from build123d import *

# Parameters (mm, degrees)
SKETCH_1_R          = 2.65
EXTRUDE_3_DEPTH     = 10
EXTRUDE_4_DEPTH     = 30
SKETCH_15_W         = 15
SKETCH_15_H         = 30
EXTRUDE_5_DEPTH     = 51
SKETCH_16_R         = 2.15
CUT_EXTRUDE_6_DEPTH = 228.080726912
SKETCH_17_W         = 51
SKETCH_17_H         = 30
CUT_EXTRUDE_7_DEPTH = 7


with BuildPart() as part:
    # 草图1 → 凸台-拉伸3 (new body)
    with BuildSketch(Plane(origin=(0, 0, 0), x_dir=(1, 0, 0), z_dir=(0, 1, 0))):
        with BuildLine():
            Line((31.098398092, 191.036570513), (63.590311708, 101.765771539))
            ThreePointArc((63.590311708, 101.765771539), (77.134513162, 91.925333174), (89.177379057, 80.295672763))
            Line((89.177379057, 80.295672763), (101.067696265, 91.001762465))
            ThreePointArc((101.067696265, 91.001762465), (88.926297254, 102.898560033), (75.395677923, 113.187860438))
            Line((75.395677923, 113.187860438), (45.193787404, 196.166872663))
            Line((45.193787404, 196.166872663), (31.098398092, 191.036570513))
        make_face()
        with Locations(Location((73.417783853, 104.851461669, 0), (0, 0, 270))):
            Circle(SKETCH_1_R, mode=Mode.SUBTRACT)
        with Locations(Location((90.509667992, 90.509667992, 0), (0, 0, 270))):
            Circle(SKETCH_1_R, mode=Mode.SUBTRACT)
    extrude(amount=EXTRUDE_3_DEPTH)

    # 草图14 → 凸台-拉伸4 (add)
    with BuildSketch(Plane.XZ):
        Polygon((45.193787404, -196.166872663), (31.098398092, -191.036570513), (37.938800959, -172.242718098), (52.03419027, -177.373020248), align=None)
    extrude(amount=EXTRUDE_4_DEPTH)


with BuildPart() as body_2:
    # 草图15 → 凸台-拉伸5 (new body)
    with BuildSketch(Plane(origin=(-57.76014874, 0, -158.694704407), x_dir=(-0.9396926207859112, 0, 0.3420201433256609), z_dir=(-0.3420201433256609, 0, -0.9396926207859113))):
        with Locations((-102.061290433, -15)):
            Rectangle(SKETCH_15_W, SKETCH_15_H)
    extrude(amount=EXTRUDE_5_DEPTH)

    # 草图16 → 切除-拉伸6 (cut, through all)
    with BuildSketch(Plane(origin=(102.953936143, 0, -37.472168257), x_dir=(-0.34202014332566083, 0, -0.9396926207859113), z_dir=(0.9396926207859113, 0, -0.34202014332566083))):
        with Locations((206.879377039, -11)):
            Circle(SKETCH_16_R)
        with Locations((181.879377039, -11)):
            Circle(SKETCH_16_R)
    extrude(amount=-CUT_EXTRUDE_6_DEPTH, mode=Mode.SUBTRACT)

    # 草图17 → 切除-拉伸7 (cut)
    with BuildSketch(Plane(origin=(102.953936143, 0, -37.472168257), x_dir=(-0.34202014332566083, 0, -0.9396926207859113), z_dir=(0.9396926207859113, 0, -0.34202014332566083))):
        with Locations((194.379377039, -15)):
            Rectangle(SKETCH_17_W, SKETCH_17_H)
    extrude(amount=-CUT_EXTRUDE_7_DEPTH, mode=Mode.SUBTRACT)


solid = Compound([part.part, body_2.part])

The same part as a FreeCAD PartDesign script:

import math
import FreeCAD as App
import Part
import Sketcher
from FreeCAD import Vector
Q = App.Units.Quantity


def add_polygon(sketch, points):
    """Adds a closed chain of lines whose ends are joined by coincident constraints."""
    first, n = sketch.GeometryCount, len(points)
    for a, b in zip(points, points[1:] + points[:1]):
        sketch.addGeometry(Part.LineSegment(App.Vector(*a, 0), App.Vector(*b, 0)), False)
    for i in range(n):
        sketch.addConstraint(Sketcher.Constraint("Coincident", first + i, 2, first + (i + 1) % n, 1))

doc = App.newDocument("Part")
body = doc.addObject("PartDesign::Body", "Body")

# Sketch on XZ plane
sketch1 = body.newObject("Sketcher::SketchObject", "Sketch")
sketch1.AttachmentSupport = (doc.getObject("XZ_Plane"), [""])
sketch1.MapMode = "FlatFace"
sketch1.addGeometry(Part.LineSegment(Vector(31.1, -191, 0), Vector(63.6, -101.8, 0)), False)
sketch1.addGeometry(Part.ArcOfCircle(Part.Circle(Vector(0, 0, 0), Vector(0, 0, 1), 120), math.radians(-58), math.radians(-42)), False)
sketch1.addGeometry(Part.LineSegment(Vector(89.2, -80.3, 0), Vector(101.1, -91, 0)), False)
sketch1.addGeometry(Part.ArcOfCircle(Part.Circle(Vector(0, 0, 0), Vector(0, 0, 1), 136), math.radians(-56.33), math.radians(-42)), False)
sketch1.addGeometry(Part.LineSegment(Vector(75.4, -113.2, 0), Vector(45.2, -196.2, 0)), False)
sketch1.addGeometry(Part.LineSegment(Vector(45.2, -196.2, 0), Vector(31.1, -191, 0)), False)
sketch1.addGeometry(Part.Circle(Vector(90.5, -90.5, 0), Vector(0, 0, 1), 2.6), False)
sketch1.addGeometry(Part.Circle(Vector(73.4, -104.9, 0), Vector(0, 0, 1), 2.6), False)
sketch1.addConstraint(Sketcher.Constraint("Coincident", 0, 2, 1, 1))
sketch1.addConstraint(Sketcher.Constraint("Coincident", 1, 2, 2, 1))
sketch1.addConstraint(Sketcher.Constraint("Coincident", 2, 2, 3, 2))
sketch1.addConstraint(Sketcher.Constraint("Coincident", 3, 1, 4, 1))
sketch1.addConstraint(Sketcher.Constraint("Coincident", 4, 2, 5, 1))
sketch1.addConstraint(Sketcher.Constraint("Coincident", 5, 2, 0, 1))
sketch1.addConstraint(Sketcher.Constraint("Coincident", 1, 3, -1, 1))
sketch1.addConstraint(Sketcher.Constraint("Coincident", 3, 3, -1, 1))
sketch1.addConstraint(Sketcher.Constraint("Equal", 6, 7))
sketch1.addConstraint(Sketcher.Constraint("Parallel", 0, 4))
sketch1.addConstraint(Sketcher.Constraint("Perpendicular", 4, 5))
sketch1.addConstraint(Sketcher.Constraint("Radius", 1, 120.0))
sketch1.addConstraint(Sketcher.Constraint("Radius", 3, 136.0))
sketch1.addConstraint(Sketcher.Constraint("Diameter", 6, 5.3))
sketch1.addConstraint(Sketcher.Constraint("Angle", 0, Q("70 deg")))
sketch1.addConstraint(Sketcher.Constraint("Angle", 2, Q("-42 deg")))
sketch1.addConstraint(Sketcher.Constraint("Distance", 0, 95.0))
sketch1.addConstraint(Sketcher.Constraint("Distance", 5, 15.0))
sketch1.addConstraint(Sketcher.Constraint("DistanceX", -1, 1, 5, 2, 31.098398))
sketch1.addConstraint(Sketcher.Constraint("DistanceY", 0, 2, 1, 2, 21.470099))
sketch1.addConstraint(Sketcher.Constraint("DistanceY", 7, 3, 2, 2, 13.849699))
sketch1.addConstraint(Sketcher.Constraint("DistanceX", 1, 3, 6, 3, 90.509668))
sketch1.addConstraint(Sketcher.Constraint("DistanceY", 6, 3, 1, 3, 90.509668))
sketch1.addConstraint(Sketcher.Constraint("DistanceX", -1, 1, 7, 3, 73.417784))
pad1 = body.newObject("PartDesign::Pad", "Pad")
pad1.Profile = sketch1
pad1.Length = 10
pad1.Reversed = True

# Sketch on XZ plane
sketch2 = body.newObject("Sketcher::SketchObject", "Sketch001")
sketch2.AttachmentSupport = (doc.getObject("XZ_Plane"), [""])
sketch2.MapMode = "FlatFace"
add_polygon(sketch2, [(31, -191), (45, -196), (52, -177), (38, -172)])  # lines 0-3
sketch2.addConstraint(Sketcher.Constraint("Perpendicular", 0, 1))
sketch2.addConstraint(Sketcher.Constraint("Perpendicular", 1, 2))
sketch2.addConstraint(Sketcher.Constraint("Perpendicular", 2, 3))
sketch2.addConstraint(Sketcher.Constraint("Angle", 0, Q("-20 deg")))
sketch2.addConstraint(Sketcher.Constraint("Distance", 0, 15.0))
sketch2.addConstraint(Sketcher.Constraint("Distance", 1, 20.0))
sketch2.addConstraint(Sketcher.Constraint("DistanceX", -1, 1, 2, 2, 37.938801))
sketch2.addConstraint(Sketcher.Constraint("DistanceY", 1, 2, -1, 1, 177.37302))
pad2 = body.newObject("PartDesign::Pad", "Pad001")
pad2.Profile = sketch2
pad2.Length = 30
body2 = doc.addObject("PartDesign::Body", "Body001")

# Sketch on an angled plane
sketch3 = body2.newObject("Sketcher::SketchObject", "Sketch002")
sketch3.Placement = App.Placement(Vector(-57.760149, 0, -158.694704), App.Rotation(Vector(-0.939692621, 0, 0.342020143), Vector(0, 1, 0), Vector(-0.342020143, 0, -0.939692621), "ZXY"))
add_polygon(sketch3, [(-110, 0), (-110, -30), (-95, -30), (-95, 0)])  # lines 0-3
sketch3.addConstraint(Sketcher.Constraint("Vertical", 0))
sketch3.addConstraint(Sketcher.Constraint("Horizontal", 1))
sketch3.addConstraint(Sketcher.Constraint("Vertical", 2))
sketch3.addConstraint(Sketcher.Constraint("Horizontal", 3))
sketch3.addConstraint(Sketcher.Constraint("PointOnObject", 2, 2, -1))
sketch3.addConstraint(Sketcher.Constraint("DistanceX", 1, 1, 1, 2, 15.0))
sketch3.addConstraint(Sketcher.Constraint("DistanceY", 0, 2, 0, 1, 30.0))
sketch3.addConstraint(Sketcher.Constraint("DistanceX", 0, 2, -1, 1, 109.56129))
pad3 = body2.newObject("PartDesign::Pad", "Pad002")
pad3.Profile = sketch3
pad3.Length = 51

# Sketch on an angled plane
sketch4 = body2.newObject("Sketcher::SketchObject", "Sketch003")
sketch4.Placement = App.Placement(Vector(102.953936, 0, -37.472168), App.Rotation(Vector(-0.342020143, 0, -0.939692621), Vector(0, 1, 0), Vector(0.939692621, 0, -0.342020143), "ZXY"))
sketch4.addGeometry(Part.Circle(Vector(206.9, -11, 0), Vector(0, 0, 1), 2.1), False)
sketch4.addGeometry(Part.Circle(Vector(181.9, -11, 0), Vector(0, 0, 1), 2.1), False)
sketch4.addConstraint(Sketcher.Constraint("Equal", 0, 1))
sketch4.addConstraint(Sketcher.Constraint("Horizontal", 0, 3, 1, 3))
sketch4.addConstraint(Sketcher.Constraint("Diameter", 0, 4.3))
sketch4.addConstraint(Sketcher.Constraint("DistanceY", 0, 3, -1, 1, 11.0))
sketch4.addConstraint(Sketcher.Constraint("DistanceX", 1, 3, 0, 3, 25.0))
sketch4.addConstraint(Sketcher.Constraint("DistanceX", -1, 1, 0, 3, 206.879377))
pocket1 = body2.newObject("PartDesign::Pocket", "Pocket")
pocket1.Profile = sketch4
pocket1.Type = "ThroughAll"

# Sketch on an angled plane
sketch5 = body2.newObject("Sketcher::SketchObject", "Sketch004")
sketch5.Placement = App.Placement(Vector(102.953936, 0, -37.472168), App.Rotation(Vector(-0.342020143, 0, -0.939692621), Vector(0, 1, 0), Vector(0.939692621, 0, -0.342020143), "ZXY"))
add_polygon(sketch5, [(169, 0), (169, -30), (220, -30), (220, 0)])  # lines 0-3
sketch5.addConstraint(Sketcher.Constraint("Vertical", 0))
sketch5.addConstraint(Sketcher.Constraint("Horizontal", 1))
sketch5.addConstraint(Sketcher.Constraint("Vertical", 2))
sketch5.addConstraint(Sketcher.Constraint("Horizontal", 3))
sketch5.addConstraint(Sketcher.Constraint("PointOnObject", 2, 2, -1))
sketch5.addConstraint(Sketcher.Constraint("DistanceX", 1, 1, 1, 2, 51.0))
sketch5.addConstraint(Sketcher.Constraint("DistanceY", 0, 2, 0, 1, 30.0))
sketch5.addConstraint(Sketcher.Constraint("DistanceX", -1, 1, 0, 2, 168.879377))
pocket2 = body2.newObject("PartDesign::Pocket", "Pocket001")
pocket2.Profile = sketch5
pocket2.Length = 7

doc.recompute()
